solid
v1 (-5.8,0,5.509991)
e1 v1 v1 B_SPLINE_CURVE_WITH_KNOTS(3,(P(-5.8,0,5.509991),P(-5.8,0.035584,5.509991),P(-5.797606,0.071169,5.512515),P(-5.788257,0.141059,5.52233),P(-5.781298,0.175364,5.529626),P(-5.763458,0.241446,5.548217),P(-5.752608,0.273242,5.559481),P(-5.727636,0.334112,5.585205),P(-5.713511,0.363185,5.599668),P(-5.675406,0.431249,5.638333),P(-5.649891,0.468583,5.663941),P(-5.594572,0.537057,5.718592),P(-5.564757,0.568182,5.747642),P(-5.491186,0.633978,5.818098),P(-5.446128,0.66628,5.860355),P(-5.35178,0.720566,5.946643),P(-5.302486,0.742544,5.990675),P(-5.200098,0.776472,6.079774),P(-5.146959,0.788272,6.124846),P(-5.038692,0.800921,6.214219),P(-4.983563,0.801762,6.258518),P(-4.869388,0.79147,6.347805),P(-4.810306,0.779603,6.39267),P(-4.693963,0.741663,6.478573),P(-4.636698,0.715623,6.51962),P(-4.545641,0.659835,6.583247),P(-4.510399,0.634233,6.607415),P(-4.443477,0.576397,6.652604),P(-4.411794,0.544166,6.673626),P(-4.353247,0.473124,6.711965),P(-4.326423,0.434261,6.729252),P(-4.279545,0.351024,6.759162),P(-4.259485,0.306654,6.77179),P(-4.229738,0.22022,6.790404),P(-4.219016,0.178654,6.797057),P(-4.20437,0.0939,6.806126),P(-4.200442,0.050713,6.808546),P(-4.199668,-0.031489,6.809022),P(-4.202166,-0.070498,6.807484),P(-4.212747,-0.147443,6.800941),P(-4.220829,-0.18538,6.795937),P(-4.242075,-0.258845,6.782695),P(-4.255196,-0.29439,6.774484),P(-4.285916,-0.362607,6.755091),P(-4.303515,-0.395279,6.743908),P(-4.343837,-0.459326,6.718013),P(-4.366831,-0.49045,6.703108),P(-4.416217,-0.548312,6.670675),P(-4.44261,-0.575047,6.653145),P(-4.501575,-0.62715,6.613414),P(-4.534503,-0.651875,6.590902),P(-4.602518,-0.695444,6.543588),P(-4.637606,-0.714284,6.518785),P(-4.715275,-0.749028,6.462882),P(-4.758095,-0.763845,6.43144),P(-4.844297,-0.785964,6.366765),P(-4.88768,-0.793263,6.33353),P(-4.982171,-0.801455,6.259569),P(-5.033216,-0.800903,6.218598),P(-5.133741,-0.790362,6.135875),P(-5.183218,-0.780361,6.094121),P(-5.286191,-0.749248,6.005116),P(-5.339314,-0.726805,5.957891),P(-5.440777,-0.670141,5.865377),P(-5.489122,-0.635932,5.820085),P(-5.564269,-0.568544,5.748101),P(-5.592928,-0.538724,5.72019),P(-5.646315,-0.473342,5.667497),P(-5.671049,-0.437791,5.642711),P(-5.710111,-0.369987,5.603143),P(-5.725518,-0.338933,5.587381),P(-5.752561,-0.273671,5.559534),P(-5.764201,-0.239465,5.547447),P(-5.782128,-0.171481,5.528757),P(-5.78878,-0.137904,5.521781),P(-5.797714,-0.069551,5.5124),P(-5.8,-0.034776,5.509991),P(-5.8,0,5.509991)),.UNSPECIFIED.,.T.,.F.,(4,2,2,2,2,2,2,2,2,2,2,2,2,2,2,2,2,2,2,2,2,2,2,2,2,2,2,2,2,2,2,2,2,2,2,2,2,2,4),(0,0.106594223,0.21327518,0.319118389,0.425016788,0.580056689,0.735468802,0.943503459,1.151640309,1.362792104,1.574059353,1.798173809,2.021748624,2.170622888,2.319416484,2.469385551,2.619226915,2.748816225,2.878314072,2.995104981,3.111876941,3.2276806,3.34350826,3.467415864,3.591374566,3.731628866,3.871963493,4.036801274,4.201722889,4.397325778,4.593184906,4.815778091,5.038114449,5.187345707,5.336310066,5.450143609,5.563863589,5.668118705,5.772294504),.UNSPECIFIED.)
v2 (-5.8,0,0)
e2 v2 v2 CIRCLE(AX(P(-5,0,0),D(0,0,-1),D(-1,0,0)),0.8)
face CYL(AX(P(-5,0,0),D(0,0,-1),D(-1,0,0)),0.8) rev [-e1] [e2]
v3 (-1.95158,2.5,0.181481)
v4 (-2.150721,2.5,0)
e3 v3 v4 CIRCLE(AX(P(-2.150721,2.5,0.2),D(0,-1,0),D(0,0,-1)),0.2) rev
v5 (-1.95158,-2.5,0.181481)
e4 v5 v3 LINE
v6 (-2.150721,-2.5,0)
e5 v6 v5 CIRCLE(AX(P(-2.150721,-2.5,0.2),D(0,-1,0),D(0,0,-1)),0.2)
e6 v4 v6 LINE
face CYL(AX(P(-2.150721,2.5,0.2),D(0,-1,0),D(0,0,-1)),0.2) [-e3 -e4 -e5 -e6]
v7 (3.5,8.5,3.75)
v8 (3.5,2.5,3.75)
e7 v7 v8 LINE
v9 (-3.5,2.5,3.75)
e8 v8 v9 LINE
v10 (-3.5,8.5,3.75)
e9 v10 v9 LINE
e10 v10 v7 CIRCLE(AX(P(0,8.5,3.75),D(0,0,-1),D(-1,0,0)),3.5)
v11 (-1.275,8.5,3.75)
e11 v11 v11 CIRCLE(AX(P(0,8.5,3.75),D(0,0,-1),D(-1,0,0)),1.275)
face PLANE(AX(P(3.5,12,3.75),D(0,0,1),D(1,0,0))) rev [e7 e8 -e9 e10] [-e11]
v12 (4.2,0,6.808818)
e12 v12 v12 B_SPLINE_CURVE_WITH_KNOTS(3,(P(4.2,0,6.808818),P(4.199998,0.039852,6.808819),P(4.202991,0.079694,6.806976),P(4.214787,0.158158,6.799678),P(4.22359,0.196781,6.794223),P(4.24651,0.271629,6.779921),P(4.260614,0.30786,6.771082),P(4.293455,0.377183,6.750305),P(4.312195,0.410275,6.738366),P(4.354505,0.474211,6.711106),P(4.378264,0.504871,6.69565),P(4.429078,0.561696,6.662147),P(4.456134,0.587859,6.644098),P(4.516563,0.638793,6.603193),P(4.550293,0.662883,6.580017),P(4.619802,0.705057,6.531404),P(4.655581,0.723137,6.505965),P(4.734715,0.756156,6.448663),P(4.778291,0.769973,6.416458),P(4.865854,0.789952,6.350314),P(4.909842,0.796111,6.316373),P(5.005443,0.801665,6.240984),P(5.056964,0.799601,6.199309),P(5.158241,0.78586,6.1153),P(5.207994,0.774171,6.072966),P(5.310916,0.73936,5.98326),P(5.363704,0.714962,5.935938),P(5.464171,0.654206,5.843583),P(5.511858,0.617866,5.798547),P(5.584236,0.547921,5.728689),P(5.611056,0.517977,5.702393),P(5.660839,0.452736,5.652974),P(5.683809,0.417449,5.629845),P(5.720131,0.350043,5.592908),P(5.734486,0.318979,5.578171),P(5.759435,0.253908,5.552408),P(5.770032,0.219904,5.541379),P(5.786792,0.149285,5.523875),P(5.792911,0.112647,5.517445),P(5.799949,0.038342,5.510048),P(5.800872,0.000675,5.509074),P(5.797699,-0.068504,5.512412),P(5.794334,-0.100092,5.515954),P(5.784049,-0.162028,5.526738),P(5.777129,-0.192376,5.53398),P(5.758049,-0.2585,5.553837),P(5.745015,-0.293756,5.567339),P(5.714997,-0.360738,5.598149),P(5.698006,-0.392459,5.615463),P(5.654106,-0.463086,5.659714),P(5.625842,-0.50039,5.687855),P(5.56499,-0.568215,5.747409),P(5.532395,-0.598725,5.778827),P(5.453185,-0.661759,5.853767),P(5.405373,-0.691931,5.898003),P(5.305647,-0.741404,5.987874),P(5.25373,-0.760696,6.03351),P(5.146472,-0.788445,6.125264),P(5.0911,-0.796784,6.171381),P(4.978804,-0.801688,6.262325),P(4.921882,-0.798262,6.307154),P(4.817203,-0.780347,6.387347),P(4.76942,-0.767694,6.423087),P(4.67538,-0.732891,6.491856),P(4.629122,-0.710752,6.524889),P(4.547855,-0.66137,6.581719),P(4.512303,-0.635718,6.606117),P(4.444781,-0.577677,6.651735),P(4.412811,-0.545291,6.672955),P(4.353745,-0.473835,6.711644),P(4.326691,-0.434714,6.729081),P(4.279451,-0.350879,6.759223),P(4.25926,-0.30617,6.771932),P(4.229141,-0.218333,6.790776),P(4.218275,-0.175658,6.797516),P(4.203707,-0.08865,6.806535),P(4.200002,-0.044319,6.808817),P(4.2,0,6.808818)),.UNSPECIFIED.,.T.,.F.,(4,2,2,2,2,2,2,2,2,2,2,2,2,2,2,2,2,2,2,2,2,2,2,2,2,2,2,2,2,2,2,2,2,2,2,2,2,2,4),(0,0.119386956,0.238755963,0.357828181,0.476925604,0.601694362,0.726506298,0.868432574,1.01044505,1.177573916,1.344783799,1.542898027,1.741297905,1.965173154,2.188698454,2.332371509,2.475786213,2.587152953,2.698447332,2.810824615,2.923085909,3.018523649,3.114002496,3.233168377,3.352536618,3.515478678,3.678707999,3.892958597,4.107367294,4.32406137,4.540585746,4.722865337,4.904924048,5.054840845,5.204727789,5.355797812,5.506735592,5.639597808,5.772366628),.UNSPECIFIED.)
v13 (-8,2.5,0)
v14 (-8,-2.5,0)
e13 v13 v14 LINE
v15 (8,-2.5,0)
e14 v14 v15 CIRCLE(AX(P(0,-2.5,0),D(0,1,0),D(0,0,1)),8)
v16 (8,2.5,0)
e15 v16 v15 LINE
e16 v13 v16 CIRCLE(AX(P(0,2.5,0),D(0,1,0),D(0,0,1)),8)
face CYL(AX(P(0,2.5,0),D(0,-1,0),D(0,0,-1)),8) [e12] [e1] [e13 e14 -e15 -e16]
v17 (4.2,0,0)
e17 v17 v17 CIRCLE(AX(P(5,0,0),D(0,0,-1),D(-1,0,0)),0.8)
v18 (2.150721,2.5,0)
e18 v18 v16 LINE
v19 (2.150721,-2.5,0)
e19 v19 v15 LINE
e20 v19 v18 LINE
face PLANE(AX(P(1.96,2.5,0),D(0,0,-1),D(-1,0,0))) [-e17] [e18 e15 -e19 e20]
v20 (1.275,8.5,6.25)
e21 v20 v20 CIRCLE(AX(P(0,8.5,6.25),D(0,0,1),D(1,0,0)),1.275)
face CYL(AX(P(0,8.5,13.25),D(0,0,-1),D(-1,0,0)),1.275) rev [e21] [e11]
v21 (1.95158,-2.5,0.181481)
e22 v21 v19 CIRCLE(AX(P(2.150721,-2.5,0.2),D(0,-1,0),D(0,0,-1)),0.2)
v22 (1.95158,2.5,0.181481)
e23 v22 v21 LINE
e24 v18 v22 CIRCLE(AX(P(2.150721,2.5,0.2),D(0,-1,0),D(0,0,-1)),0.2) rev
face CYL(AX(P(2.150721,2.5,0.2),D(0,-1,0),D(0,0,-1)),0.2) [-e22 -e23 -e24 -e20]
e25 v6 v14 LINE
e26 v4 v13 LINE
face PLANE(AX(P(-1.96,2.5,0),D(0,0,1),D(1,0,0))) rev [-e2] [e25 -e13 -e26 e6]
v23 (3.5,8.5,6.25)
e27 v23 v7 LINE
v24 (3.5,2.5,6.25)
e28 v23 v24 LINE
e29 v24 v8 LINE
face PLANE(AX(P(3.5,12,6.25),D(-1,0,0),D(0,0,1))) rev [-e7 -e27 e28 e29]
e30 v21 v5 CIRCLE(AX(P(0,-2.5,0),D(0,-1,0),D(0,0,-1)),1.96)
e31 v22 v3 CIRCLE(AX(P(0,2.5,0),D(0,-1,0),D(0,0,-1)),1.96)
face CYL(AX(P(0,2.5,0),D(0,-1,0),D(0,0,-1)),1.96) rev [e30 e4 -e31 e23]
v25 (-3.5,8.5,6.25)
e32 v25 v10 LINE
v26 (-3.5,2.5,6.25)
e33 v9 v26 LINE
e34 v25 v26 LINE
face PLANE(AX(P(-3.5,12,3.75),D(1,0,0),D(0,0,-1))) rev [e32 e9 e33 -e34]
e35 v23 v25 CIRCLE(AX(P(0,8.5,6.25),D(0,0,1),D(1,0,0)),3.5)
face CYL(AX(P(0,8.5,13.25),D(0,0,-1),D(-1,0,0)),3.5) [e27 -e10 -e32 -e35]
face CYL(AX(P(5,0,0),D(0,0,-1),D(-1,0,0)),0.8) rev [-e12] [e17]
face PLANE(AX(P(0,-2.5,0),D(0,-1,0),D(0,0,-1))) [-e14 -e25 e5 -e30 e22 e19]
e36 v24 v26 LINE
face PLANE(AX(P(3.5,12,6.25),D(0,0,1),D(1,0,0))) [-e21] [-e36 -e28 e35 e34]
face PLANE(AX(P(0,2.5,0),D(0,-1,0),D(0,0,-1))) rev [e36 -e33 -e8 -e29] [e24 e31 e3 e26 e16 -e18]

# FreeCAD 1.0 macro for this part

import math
import FreeCAD as App
import Part
import Sketcher

V = App.Vector
Q = App.Units.Quantity


def edges_at(feature, points):
    """Names of the edges that pass closest to the given points."""
    edges = feature.Shape.Edges
    near = lambda p: min(range(len(edges)), key=lambda i: edges[i].distToShape(Part.Vertex(*p))[0])
    return sorted({f"Edge{near(p) + 1}" for p in points})


def add_polygon(sketch, points):
    """Adds a closed chain of lines whose ends are joined by coincident constraints."""
    first, n = sketch.GeometryCount, len(points)
    for a, b in zip(points, points[1:] + points[:1]):
        sketch.addGeometry(Part.LineSegment(App.Vector(*a, 0), App.Vector(*b, 0)), False)
    for i in range(n):
        sketch.addConstraint(Sketcher.Constraint("Coincident", first + i, 2, first + (i + 1) % n, 1))

doc = App.newDocument("Part")
params = doc.addObject("Spreadsheet::Sheet", "Params")
for row, (alias, value) in enumerate([
    ("sketch1_radius", "8 mm"),
    ("sketch1_radius2", "1.96 mm"),
    ("pad1_length", "5 mm"),
    ("sketch2_width", "7 mm"),
    ("sketch2_height", "2.5 mm"),
    ("pad2_length", "9.5 mm"),
    ("sketch3_radius", "3.5 mm"),
    ("sketch3_height", "6 mm"),
    ("pocket1_length", "9.5 mm"),
    ("sketch4_diameter", "2.55 mm"),
    ("pocket2_length", "9.5 mm"),
    ("sketch5_diameter", "1.6 mm"),
    ("hole_diameter", "1.6 mm"),
    ("fillet_radius", "0.2 mm"),
], start=1):
    params.set(f"A{row}", alias)
    params.set(f"B{row}", "=" + value)
    params.setAlias(f"B{row}", alias)

body = doc.addObject("PartDesign::Body", "Body")

# Sketch on XZ plane
sketch1 = doc.addObject("Sketcher::SketchObject", "Sketch")
body.addObject(sketch1)
sketch1.AttachmentSupport = (doc.XZ_Plane, [""])
sketch1.MapMode = "FlatFace"
sketch1.addGeometry([
    Part.LineSegment(V(8, 0, 0), V(2, 0, 0)),
    Part.ArcOfCircle(Part.Circle(V(0, 0, 0), V(0, 0, 1), 2), math.radians(0), math.radians(180)),
    Part.LineSegment(V(-2, 0, 0), V(-8, 0, 0)),
    Part.ArcOfCircle(Part.Circle(V(0, 0, 0), V(0, 0, 1), 8), math.radians(0), math.radians(180)),
], False)
sketch1.addConstraint([
    Sketcher.Constraint("Coincident", 0, 2, 1, 1),
    Sketcher.Constraint("Coincident", 1, 2, 2, 1),
    Sketcher.Constraint("Coincident", 2, 2, 3, 2),
    Sketcher.Constraint("Coincident", 3, 1, 0, 1),
    Sketcher.Constraint("Horizontal", 0),
    Sketcher.Constraint("Horizontal", 2),
    Sketcher.Constraint("Coincident", 1, 3, -1, 1),
    Sketcher.Constraint("Coincident", 3, 3, -1, 1),
    Sketcher.Constraint("PointOnObject", 0, 2, -1),
    Sketcher.Constraint("PointOnObject", 1, 2, -1),
    Sketcher.Constraint("Radius", 3, Q("8 mm")),
    Sketcher.Constraint("Radius", 1, Q("1.96 mm")),
])
sketch1.setExpression("Constraints[10]", "Params.sketch1_radius")
sketch1.setExpression("Constraints[11]", "Params.sketch1_radius2")
pad1 = doc.addObject("PartDesign::Pad", "Pad")
body.addObject(pad1)
pad1.Profile = sketch1
pad1.setExpression("Length", "Params.pad1_length")
pad1.Midplane = True

# Sketch on XZ plane
sketch2 = doc.addObject("Sketcher::SketchObject", "Sketch001")
body.addObject(sketch2)
sketch2.AttachmentSupport = (doc.XZ_Plane, [""])
sketch2.MapMode = "FlatFace"
sketch2.AttachmentOffset = App.Placement(V(0, 0, -2.5), App.Rotation())
add_polygon(sketch2, [(-3.5, 3.8), (-3.5, 6.2), (3.5, 6.2), (3.5, 3.8)])  # lines 0-3
sketch2.addConstraint([
    Sketcher.Constraint("Vertical", 0),
    Sketcher.Constraint("Horizontal", 1),
    Sketcher.Constraint("Vertical", 2),
    Sketcher.Constraint("Horizontal", 3),
    Sketcher.Constraint("DistanceX", 1, 1, 1, 2, Q("7 mm")),
    Sketcher.Constraint("DistanceY", 0, 1, 0, 2, Q("2.5 mm")),
    Sketcher.Constraint("DistanceX", 0, 2, -1, 1, Q("3.5 mm")),
    Sketcher.Constraint("DistanceY", -1, 1, 0, 2, Q("6.25 mm")),
])
sketch2.setExpression("Constraints[8]", "Params.sketch2_width")
sketch2.setExpression("Constraints[9]", "Params.sketch2_height")
pad2 = doc.addObject("PartDesign::Pad", "Pad001")
body.addObject(pad2)
pad2.Profile = sketch2
pad2.setExpression("Length", "Params.pad2_length")
pad2.Reversed = True

# Sketch on XY plane
sketch3 = doc.addObject("Sketcher::SketchObject", "Sketch002")
body.addObject(sketch3)
sketch3.AttachmentSupport = (doc.XY_Plane, [""])
sketch3.MapMode = "FlatFace"
sketch3.AttachmentOffset = App.Placement(V(0, 0, 3.75), App.Rotation())
sketch3.addGeometry([
    Part.LineSegment(V(3.5, 14.9, 0), V(3.5, 8.5, 0)),  # 0
    Part.ArcOfCircle(Part.Circle(V(0, 8.5, 0), V(0, 0, 1), 3.5), math.radians(0), math.radians(180)),  # 1
    Part.LineSegment(V(-3.5, 8.5, 0), V(-3.5, 14.5, 0)),  # 2
    Part.LineSegment(V(-3.5, 14.5, 0), V(0, 16.8, 0)),  # 3
    Part.LineSegment(V(0, 16.8, 0), V(3.5, 14.9, 0)),  # 4
], False)
sketch3.addConstraint([
    Sketcher.Constraint("Tangent", 0, 2, 1, 1),
    Sketcher.Constraint("Tangent", 1, 2, 2, 1),
    Sketcher.Constraint("Coincident", 2, 2, 3, 1),
    Sketcher.Constraint("Coincident", 3, 2, 4, 1),
    Sketcher.Constraint("Coincident", 4, 2, 0, 1),
    Sketcher.Constraint("Vertical", 0),
    Sketcher.Constraint("Vertical", 2),
    Sketcher.Constraint("PointOnObject", 1, 3, -2),
    Sketcher.Constraint("PointOnObject", 3, 2, -2),
    Sketcher.Constraint("Radius", 1, Q("3.5 mm")),
    Sketcher.Constraint("DistanceY", 2, 1, 2, 2, Q("6 mm")),
    Sketcher.Constraint("DistanceY", -1, 1, 1, 3, Q("8.5 mm")),
    Sketcher.Constraint("DistanceY", 0, 2, 0, 1, Q("6.38636 mm")),
    Sketcher.Constraint("DistanceY", -1, 1, 3, 2, Q("16.809202 mm")),
])
sketch3.setExpression("Constraints[9]", "Params.sketch3_radius")
sketch3.setExpression("Constraints[10]", "Params.sketch3_height")
pocket1 = doc.addObject("PartDesign::Pocket", "Pocket")
body.addObject(pocket1)
pocket1.Profile = sketch3
pocket1.setExpression("Length", "Params.pocket1_length")
pocket1.Reversed = True

# Sketch on XY plane
sketch4 = doc.addObject("Sketcher::SketchObject", "Sketch003")
body.addObject(sketch4)
sketch4.AttachmentSupport = (doc.XY_Plane, [""])
sketch4.MapMode = "FlatFace"
sketch4.AttachmentOffset = App.Placement(V(0, 0, 3.75), App.Rotation())
sketch4.addGeometry(Part.Circle(V(0, 8.5, 0), V(0, 0, 1), 1.3), False)
sketch4.addConstraint([
    Sketcher.Constraint("PointOnObject", 0, 3, -2),
    Sketcher.Constraint("Diameter", 0, Q("2.55 mm")),
    Sketcher.Constraint("DistanceY", -1, 1, 0, 3, Q("8.5 mm")),
])
sketch4.setExpression("Constraints[1]", "Params.sketch4_diameter")
pocket2 = doc.addObject("PartDesign::Pocket", "Pocket001")
body.addObject(pocket2)
pocket2.Profile = sketch4
pocket2.setExpression("Length", "Params.pocket2_length")
pocket2.Reversed = True

# Sketch on XY plane
sketch5 = doc.addObject("Sketcher::SketchObject", "Sketch004")
body.addObject(sketch5)
sketch5.AttachmentSupport = (doc.XY_Plane, [""])
sketch5.MapMode = "FlatFace"
sketch5.addGeometry([
    Part.Circle(V(5, 0, 0), V(0, 0, 1), 0.8),
    Part.Circle(V(-5, 0, 0), V(0, 0, 1), 0.8),
], False)
sketch5.addConstraint([
    Sketcher.Constraint("Equal", 0, 1),
    Sketcher.Constraint("Symmetric", 0, 3, 1, 3, -1, 1),
    Sketcher.Constraint("PointOnObject", 0, 3, -1),
    Sketcher.Constraint("Diameter", 0, Q("1.6 mm")),
    Sketcher.Constraint("DistanceX", -1, 1, 0, 3, Q("5 mm")),
])
sketch5.setExpression("Constraints[3]", "Params.sketch5_diameter")
doc.recompute()
hole = doc.addObject("PartDesign::Hole", "Hole")
body.addObject(hole)
hole.Profile = sketch5
hole.ThreadType = "None"
hole.setExpression("Diameter", "Params.hole_diameter")
hole.DepthType = "ThroughAll"
hole.Reversed = True
doc.recompute()

fillet = doc.addObject("PartDesign::Fillet", "Fillet")
body.addObject(fillet)
fillet.Base = (hole, edges_at(hole, [(1.96, 0, 0), (-1.96, 0, 0)]))
fillet.setExpression("Radius", "Params.fillet_radius")

doc.recompute()
